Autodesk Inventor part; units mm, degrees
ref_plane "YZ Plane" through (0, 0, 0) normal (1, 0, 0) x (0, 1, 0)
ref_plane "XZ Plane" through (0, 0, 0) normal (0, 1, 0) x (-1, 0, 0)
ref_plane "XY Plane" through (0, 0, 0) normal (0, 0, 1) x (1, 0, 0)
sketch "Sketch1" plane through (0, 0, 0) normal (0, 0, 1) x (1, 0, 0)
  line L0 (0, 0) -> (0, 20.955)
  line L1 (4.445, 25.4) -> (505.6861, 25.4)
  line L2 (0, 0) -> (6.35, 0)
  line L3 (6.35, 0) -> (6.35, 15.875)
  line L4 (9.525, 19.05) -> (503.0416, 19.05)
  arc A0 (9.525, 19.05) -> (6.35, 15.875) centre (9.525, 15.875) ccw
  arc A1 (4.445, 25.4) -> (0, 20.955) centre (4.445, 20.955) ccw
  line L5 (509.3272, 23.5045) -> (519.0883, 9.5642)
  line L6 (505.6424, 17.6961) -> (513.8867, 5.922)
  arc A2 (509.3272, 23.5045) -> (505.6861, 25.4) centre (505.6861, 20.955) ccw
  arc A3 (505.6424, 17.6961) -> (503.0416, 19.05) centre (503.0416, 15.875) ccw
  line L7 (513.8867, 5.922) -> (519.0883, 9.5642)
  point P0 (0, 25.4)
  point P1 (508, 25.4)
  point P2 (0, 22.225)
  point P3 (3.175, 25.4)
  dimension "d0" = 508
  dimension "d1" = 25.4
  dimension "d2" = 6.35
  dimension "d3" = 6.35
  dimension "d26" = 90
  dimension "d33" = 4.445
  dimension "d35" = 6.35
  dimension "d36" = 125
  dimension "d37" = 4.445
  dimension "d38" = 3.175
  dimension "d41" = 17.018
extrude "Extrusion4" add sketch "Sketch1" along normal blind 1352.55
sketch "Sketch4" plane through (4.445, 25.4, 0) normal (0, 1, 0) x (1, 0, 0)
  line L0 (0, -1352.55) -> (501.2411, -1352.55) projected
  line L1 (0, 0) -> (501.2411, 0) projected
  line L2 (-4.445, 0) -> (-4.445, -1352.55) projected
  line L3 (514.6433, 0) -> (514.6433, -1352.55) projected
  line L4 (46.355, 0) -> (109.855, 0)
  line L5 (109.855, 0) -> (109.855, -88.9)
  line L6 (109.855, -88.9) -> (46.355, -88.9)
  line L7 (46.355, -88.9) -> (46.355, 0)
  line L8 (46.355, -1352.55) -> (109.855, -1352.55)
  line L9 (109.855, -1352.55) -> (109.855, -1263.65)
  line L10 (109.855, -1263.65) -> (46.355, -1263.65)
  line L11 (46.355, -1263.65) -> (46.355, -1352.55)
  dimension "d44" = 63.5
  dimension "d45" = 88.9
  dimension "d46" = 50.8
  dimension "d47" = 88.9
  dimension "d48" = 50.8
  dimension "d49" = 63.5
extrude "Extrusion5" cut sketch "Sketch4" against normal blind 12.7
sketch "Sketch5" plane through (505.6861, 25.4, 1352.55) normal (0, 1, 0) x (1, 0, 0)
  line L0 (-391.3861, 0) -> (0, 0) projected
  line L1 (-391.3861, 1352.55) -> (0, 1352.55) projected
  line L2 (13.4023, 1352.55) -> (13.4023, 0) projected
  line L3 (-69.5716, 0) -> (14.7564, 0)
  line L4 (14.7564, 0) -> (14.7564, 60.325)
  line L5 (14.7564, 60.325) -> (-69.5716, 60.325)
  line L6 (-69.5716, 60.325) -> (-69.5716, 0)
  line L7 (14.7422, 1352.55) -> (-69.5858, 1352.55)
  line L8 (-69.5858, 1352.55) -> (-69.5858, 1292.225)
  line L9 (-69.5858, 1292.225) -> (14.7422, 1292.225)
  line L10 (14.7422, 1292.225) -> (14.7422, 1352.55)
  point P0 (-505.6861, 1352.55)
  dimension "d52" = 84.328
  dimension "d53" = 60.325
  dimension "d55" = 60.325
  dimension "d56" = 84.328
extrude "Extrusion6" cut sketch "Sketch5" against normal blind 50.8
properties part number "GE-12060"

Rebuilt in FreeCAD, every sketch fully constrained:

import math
import FreeCAD as App
import Part
import Sketcher
from FreeCAD import Vector
Q = App.Units.Quantity


def add_polygon(sketch, points):
    """Adds a closed chain of lines whose ends are joined by coincident constraints."""
    first, n = sketch.GeometryCount, len(points)
    for a, b in zip(points, points[1:] + points[:1]):
        sketch.addGeometry(Part.LineSegment(App.Vector(*a, 0), App.Vector(*b, 0)), False)
    for i in range(n):
        sketch.addConstraint(Sketcher.Constraint("Coincident", first + i, 2, first + (i + 1) % n, 1))

doc = App.newDocument("Part")
params = doc.addObject("Spreadsheet::Sheet", "Params")
for row, (alias, value) in enumerate([
    ("sketch1_radius", "0.125 in"),
    ("sketch1_radius2", "0.175 in"),
    ("sketch1_width", "0.25 in"),
    ("sketch1_length", "0.25 in"),
    ("sketch1_length2", "0.67 in"),
    ("pad1_length", "53.25 in"),
    ("sketch2_width", "2.5 in"),
    ("sketch2_height", "3.5 in"),
    ("pocket1_length", "0.5 in"),
    ("sketch3_width", "3.32 in"),
    ("sketch3_height", "2.375 in"),
    ("pocket2_length", "2 in"),
], start=1):
    params.set(f"A{row}", alias)
    params.set(f"B{row}", "=" + value)
    params.setAlias(f"B{row}", alias)

body = doc.addObject("PartDesign::Body", "Body")

sketch1 = body.newObject("Sketcher::SketchObject", "Sketch")
sketch1.AttachmentSupport = (doc.getObject("XY_Plane"), [""])
sketch1.MapMode = "FlatFace"
sketch1.addGeometry(Part.LineSegment(Vector(0, 21, 0), Vector(0, 0, 0)), False)
sketch1.addGeometry(Part.LineSegment(Vector(0, 0, 0), Vector(6.3, 0, 0)), False)
sketch1.addGeometry(Part.LineSegment(Vector(6.3, 0, 0), Vector(6.3, 15.9, 0)), False)
sketch1.addGeometry(Part.ArcOfCircle(Part.Circle(Vector(9.5, 15.9, 0), Vector(0, 0, 1), 3.2), math.radians(90), math.radians(180)), False)
sketch1.addGeometry(Part.LineSegment(Vector(9.5, 19.1, 0), Vector(503, 19.1, 0)), False)
sketch1.addGeometry(Part.ArcOfCircle(Part.Circle(Vector(503, 15.9, 0), Vector(0, 0, 1), 3.2), math.radians(35), math.radians(90)), False)
sketch1.addGeometry(Part.LineSegment(Vector(505.6, 17.7, 0), Vector(513.9, 5.9, 0)), False)
sketch1.addGeometry(Part.LineSegment(Vector(513.9, 5.9, 0), Vector(519.1, 9.6, 0)), False)
sketch1.addGeometry(Part.LineSegment(Vector(519.1, 9.6, 0), Vector(509.3, 23.5, 0)), False)
sketch1.addGeometry(Part.ArcOfCircle(Part.Circle(Vector(505.7, 21, 0), Vector(0, 0, 1), 4.4), math.radians(35), math.radians(90)), False)
sketch1.addGeometry(Part.LineSegment(Vector(505.7, 25.4, 0), Vector(4.4, 25.4, 0)), False)
sketch1.addGeometry(Part.ArcOfCircle(Part.Circle(Vector(4.4, 21, 0), Vector(0, 0, 1), 4.4), math.radians(90), math.radians(180)), False)
sketch1.addConstraint(Sketcher.Constraint("Coincident", 0, 2, 1, 1))
sketch1.addConstraint(Sketcher.Constraint("Coincident", 1, 2, 2, 1))
sketch1.addConstraint(Sketcher.Constraint("Tangent", 2, 2, 3, 2))
sketch1.addConstraint(Sketcher.Constraint("Tangent", 3, 1, 4, 1))
sketch1.addConstraint(Sketcher.Constraint("Tangent", 4, 2, 5, 2))
sketch1.addConstraint(Sketcher.Constraint("Tangent", 5, 1, 6, 1))
sketch1.addConstraint(Sketcher.Constraint("Coincident", 6, 2, 7, 1))
sketch1.addConstraint(Sketcher.Constraint("Coincident", 7, 2, 8, 1))
sketch1.addConstraint(Sketcher.Constraint("Tangent", 8, 2, 9, 1))
sketch1.addConstraint(Sketcher.Constraint("Tangent", 9, 2, 10, 1))
sketch1.addConstraint(Sketcher.Constraint("Tangent", 10, 2, 11, 1))
sketch1.addConstraint(Sketcher.Constraint("Tangent", 11, 2, 0, 1))
sketch1.addConstraint(Sketcher.Constraint("Vertical", 0))
sketch1.addConstraint(Sketcher.Constraint("Horizontal", 1))
sketch1.addConstraint(Sketcher.Constraint("Vertical", 2))
sketch1.addConstraint(Sketcher.Constraint("Horizontal", 4))
sketch1.addConstraint(Sketcher.Constraint("Horizontal", 10))
sketch1.addConstraint(Sketcher.Constraint("Coincident", 0, 2, -1, 1))
sketch1.addConstraint(Sketcher.Constraint("Equal", 3, 5))
sketch1.addConstraint(Sketcher.Constraint("Equal", 9, 11))
sketch1.addConstraint(Sketcher.Constraint("Perpendicular", 6, 7))
sketch1.addConstraint(Sketcher.Constraint("Perpendicular", 7, 8))
sketch1.addConstraint(Sketcher.Constraint("DistanceY", -1, 1, 9, 2, Q("1 in")))
sketch1.addConstraint(Sketcher.Constraint("Angle", 8, Q("125 deg")))
sketch1.addConstraint(Sketcher.Constraint("Radius", 3, Q("0.125 in")))
sketch1.addConstraint(Sketcher.Constraint("Radius", 9, Q("0.175 in")))
sketch1.addConstraint(Sketcher.Constraint("DistanceX", 1, 1, 1, 2, Q("0.25 in")))
sketch1.addConstraint(Sketcher.Constraint("Distance", 7, Q("0.25 in")))
sketch1.addConstraint(Sketcher.Constraint("Distance", 8, Q("0.67 in")))
sketch1.addConstraint(Sketcher.Constraint("DistanceY", 4, 2, 9, 2, Q("0.25 in")))
sketch1.addConstraint(Sketcher.Constraint("DistanceX", 10, 2, 10, 1, Q("19.7339 in")))
sketch1.setExpression("Constraints[24]", "Params.sketch1_radius")
sketch1.setExpression("Constraints[25]", "Params.sketch1_radius2")
sketch1.setExpression("Constraints[26]", "Params.sketch1_width")
sketch1.setExpression("Constraints[27]", "Params.sketch1_length")
sketch1.setExpression("Constraints[28]", "Params.sketch1_length2")
pad1 = body.newObject("PartDesign::Pad", "Pad")
pad1.Profile = sketch1
pad1.setExpression("Length", "Params.pad1_length")

sketch2 = body.newObject("Sketcher::SketchObject", "Sketch001")
sketch2.AttachmentSupport = (doc.getObject("XZ_Plane"), [""])
sketch2.MapMode = "FlatFace"
sketch2.AttachmentOffset = App.Placement(Vector(0, 0, -1 * 25.4), App.Rotation())
add_polygon(sketch2, [(51, 1264), (51, 1353), (114, 1353), (114, 1264)])
add_polygon(sketch2, [(114, 0), (51, 0), (51, 89), (114, 89)])
sketch2.addConstraint(Sketcher.Constraint("Vertical", 0))
sketch2.addConstraint(Sketcher.Constraint("Horizontal", 1))
sketch2.addConstraint(Sketcher.Constraint("Vertical", 2))
sketch2.addConstraint(Sketcher.Constraint("Horizontal", 3))
sketch2.addConstraint(Sketcher.Constraint("Horizontal", 4))
sketch2.addConstraint(Sketcher.Constraint("Vertical", 5))
sketch2.addConstraint(Sketcher.Constraint("Horizontal", 6))
sketch2.addConstraint(Sketcher.Constraint("Vertical", 7))
sketch2.addConstraint(Sketcher.Constraint("PointOnObject", 4, 2, -1))
sketch2.addConstraint(Sketcher.Constraint("Vertical", 3, 2, 4, 2))
sketch2.addConstraint(Sketcher.Constraint("Vertical", 2, 2, 6, 2))
sketch2.addConstraint(Sketcher.Constraint("Equal", 2, 5))
sketch2.addConstraint(Sketcher.Constraint("DistanceX", 1, 1, 1, 2, Q("2.5 in")))
sketch2.addConstraint(Sketcher.Constraint("DistanceY", 0, 1, 0, 2, Q("3.5 in")))
sketch2.addConstraint(Sketcher.Constraint("DistanceX", -1, 1, 0, 2, Q("2 in")))
sketch2.addConstraint(Sketcher.Constraint("DistanceY", -1, 1, 0, 2, Q("53.25 in")))
sketch2.setExpression("Constraints[20]", "Params.sketch2_width")
sketch2.setExpression("Constraints[21]", "Params.sketch2_height")
pocket1 = body.newObject("PartDesign::Pocket", "Pocket")
pocket1.Profile = sketch2
pocket1.setExpression("Length", "Params.pocket1_length")
pocket1.Reversed = True

sketch3 = body.newObject("Sketcher::SketchObject", "Sketch002")
sketch3.AttachmentSupport = (doc.getObject("XZ_Plane"), [""])
sketch3.MapMode = "FlatFace"
sketch3.AttachmentOffset = App.Placement(Vector(0, 0, -1 * 25.4), App.Rotation())
add_polygon(sketch3, [(436, 1292), (436, 1353), (520, 1353), (520, 1292)])
add_polygon(sketch3, [(436, 60), (520, 60), (520, 0), (436, 0)])
sketch3.addConstraint(Sketcher.Constraint("Vertical", 0))
sketch3.addConstraint(Sketcher.Constraint("Horizontal", 1))
sketch3.addConstraint(Sketcher.Constraint("Vertical", 2))
sketch3.addConstraint(Sketcher.Constraint("Horizontal", 3))
sketch3.addConstraint(Sketcher.Constraint("Horizontal", 4))
sketch3.addConstraint(Sketcher.Constraint("Vertical", 5))
sketch3.addConstraint(Sketcher.Constraint("Horizontal", 6))
sketch3.addConstraint(Sketcher.Constraint("Vertical", 7))
sketch3.addConstraint(Sketcher.Constraint("PointOnObject", 5, 2, -1))
sketch3.addConstraint(Sketcher.Constraint("Equal", 3, 4))
sketch3.addConstraint(Sketcher.Constraint("Equal", 2, 5))
sketch3.addConstraint(Sketcher.Constraint("DistanceX", 1, 1, 1, 2, Q("3.32 in")))
sketch3.addConstraint(Sketcher.Constraint("DistanceY", 0, 1, 0, 2, Q("2.375 in")))
sketch3.addConstraint(Sketcher.Constraint("DistanceY", 4, 2, 2, 2, Q("48.5 in")))
sketch3.addConstraint(Sketcher.Constraint("DistanceX", -1, 1, 4, 2, Q("20.4893 in")))
sketch3.addConstraint(Sketcher.Constraint("DistanceX", -1, 1, 0, 2, 436.1145))
sketch3.setExpression("Constraints[19]", "Params.sketch3_width")
sketch3.setExpression("Constraints[20]", "Params.sketch3_height")
pocket2 = body.newObject("PartDesign::Pocket", "Pocket001")
pocket2.Profile = sketch3
pocket2.setExpression("Length", "Params.pocket2_length")
pocket2.Reversed = True

doc.recompute()
